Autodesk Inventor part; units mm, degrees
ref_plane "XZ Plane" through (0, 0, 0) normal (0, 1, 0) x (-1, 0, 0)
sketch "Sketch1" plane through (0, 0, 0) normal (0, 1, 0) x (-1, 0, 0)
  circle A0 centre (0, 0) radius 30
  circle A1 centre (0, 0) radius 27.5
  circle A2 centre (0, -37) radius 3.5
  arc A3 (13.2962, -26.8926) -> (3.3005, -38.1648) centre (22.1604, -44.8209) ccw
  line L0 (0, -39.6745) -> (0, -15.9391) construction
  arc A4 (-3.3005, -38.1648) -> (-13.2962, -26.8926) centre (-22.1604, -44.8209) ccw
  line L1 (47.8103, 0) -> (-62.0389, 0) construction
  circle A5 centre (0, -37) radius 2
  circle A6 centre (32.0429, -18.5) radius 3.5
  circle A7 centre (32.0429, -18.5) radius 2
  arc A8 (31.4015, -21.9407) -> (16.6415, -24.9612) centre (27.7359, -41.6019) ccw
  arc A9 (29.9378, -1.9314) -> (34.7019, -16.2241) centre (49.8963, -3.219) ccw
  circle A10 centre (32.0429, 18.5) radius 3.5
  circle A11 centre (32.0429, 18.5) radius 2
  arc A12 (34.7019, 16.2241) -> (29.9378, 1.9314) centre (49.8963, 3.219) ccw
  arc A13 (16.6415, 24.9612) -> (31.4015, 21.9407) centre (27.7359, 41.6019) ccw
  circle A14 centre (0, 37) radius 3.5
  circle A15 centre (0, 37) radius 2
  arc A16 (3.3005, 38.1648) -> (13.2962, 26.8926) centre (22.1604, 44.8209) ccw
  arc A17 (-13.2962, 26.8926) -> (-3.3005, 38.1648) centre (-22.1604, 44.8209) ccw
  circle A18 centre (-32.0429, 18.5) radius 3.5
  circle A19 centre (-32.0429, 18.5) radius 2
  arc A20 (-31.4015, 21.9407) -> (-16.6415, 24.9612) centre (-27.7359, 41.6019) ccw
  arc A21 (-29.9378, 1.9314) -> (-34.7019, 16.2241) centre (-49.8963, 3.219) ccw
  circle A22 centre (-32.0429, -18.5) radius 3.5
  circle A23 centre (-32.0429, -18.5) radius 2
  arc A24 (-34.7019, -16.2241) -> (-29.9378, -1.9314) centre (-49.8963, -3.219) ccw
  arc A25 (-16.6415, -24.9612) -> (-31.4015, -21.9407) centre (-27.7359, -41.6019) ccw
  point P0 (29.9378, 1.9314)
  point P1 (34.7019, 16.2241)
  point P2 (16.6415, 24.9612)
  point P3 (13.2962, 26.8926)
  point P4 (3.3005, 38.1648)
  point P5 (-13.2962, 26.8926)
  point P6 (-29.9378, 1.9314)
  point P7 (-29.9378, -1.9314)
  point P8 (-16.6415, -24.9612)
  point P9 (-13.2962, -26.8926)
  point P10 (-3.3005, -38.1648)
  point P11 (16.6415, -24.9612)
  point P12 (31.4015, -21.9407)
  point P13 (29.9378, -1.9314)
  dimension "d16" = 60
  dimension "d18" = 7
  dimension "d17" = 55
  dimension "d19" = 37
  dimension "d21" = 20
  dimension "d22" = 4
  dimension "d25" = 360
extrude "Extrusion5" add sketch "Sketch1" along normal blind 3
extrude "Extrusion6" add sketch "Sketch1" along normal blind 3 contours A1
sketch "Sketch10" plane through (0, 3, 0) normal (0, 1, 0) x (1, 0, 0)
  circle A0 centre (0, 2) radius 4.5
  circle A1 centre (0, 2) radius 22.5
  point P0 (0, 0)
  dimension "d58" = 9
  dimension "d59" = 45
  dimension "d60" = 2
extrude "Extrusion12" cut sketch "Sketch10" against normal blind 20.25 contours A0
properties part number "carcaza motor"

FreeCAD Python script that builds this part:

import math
import FreeCAD as App
import Part
import Sketcher
Q = App.Units.Quantity

doc = App.newDocument("Part")
body = doc.addObject("PartDesign::Body", "Body")

# Sketch on XZ plane
sketch1 = body.newObject("Sketcher::SketchObject", "Sketch")
sketch1.AttachmentSupport = (doc.getObject("XZ_Plane"), [""])
sketch1.MapMode = "FlatFace"
sketch1.addGeometry(Part.ArcOfCircle(Part.Circle(App.Vector(0, 0, 0), App.Vector(0, 0, 1), 30), math.radians(176.31), math.radians(183.69)), False)
sketch1.addGeometry(Part.ArcOfCircle(Part.Circle(App.Vector(-49.9, 3.2, 0), App.Vector(0, 0, 1), 20), math.radians(-4), math.radians(41)), False)
sketch1.addGeometry(Part.ArcOfCircle(Part.Circle(App.Vector(-32, 18.5, 0), App.Vector(0, 0, 1), 3.5), math.radians(79), math.radians(221)), False)
sketch1.addGeometry(Part.ArcOfCircle(Part.Circle(App.Vector(-27.7, 41.6, 0), App.Vector(0, 0, 1), 20), math.radians(-101), math.radians(-56)), False)
sketch1.addGeometry(Part.ArcOfCircle(Part.Circle(App.Vector(0, 0, 0), App.Vector(0, 0, 1), 30), math.radians(116.31), math.radians(123.69)), False)
sketch1.addGeometry(Part.ArcOfCircle(Part.Circle(App.Vector(-22.2, 44.8, 0), App.Vector(0, 0, 1), 20), math.radians(-64), math.radians(-19)), False)
sketch1.addGeometry(Part.ArcOfCircle(Part.Circle(App.Vector(0, 37, 0), App.Vector(0, 0, 1), 3.5), math.radians(19), math.radians(161)), False)
sketch1.addGeometry(Part.ArcOfCircle(Part.Circle(App.Vector(22.2, 44.8, 0), App.Vector(0, 0, 1), 20), math.radians(-161), math.radians(-116)), False)
sketch1.addGeometry(Part.ArcOfCircle(Part.Circle(App.Vector(0, 0, 0), App.Vector(0, 0, 1), 30), math.radians(56.31), math.radians(63.69)), False)
sketch1.addGeometry(Part.ArcOfCircle(Part.Circle(App.Vector(27.7, 41.6, 0), App.Vector(0, 0, 1), 20), math.radians(-124), math.radians(-79)), False)
sketch1.addGeometry(Part.ArcOfCircle(Part.Circle(App.Vector(32, 18.5, 0), App.Vector(0, 0, 1), 3.5), math.radians(-41), math.radians(101)), False)
sketch1.addGeometry(Part.ArcOfCircle(Part.Circle(App.Vector(49.9, 3.2, 0), App.Vector(0, 0, 1), 20), math.radians(139), math.radians(184)), False)
sketch1.addGeometry(Part.ArcOfCircle(Part.Circle(App.Vector(0, 0, 0), App.Vector(0, 0, 1), 30), math.radians(-3.69), math.radians(3.69)), False)
sketch1.addGeometry(Part.ArcOfCircle(Part.Circle(App.Vector(49.9, -3.2, 0), App.Vector(0, 0, 1), 20), math.radians(176), math.radians(221)), False)
sketch1.addGeometry(Part.ArcOfCircle(Part.Circle(App.Vector(32, -18.5, 0), App.Vector(0, 0, 1), 3.5), math.radians(-101), math.radians(41)), False)
sketch1.addGeometry(Part.ArcOfCircle(Part.Circle(App.Vector(27.7, -41.6, 0), App.Vector(0, 0, 1), 20), math.radians(79), math.radians(124)), False)
sketch1.addGeometry(Part.ArcOfCircle(Part.Circle(App.Vector(0, 0, 0), App.Vector(0, 0, 1), 30), math.radians(-63.69), math.radians(-56.31)), False)
sketch1.addGeometry(Part.ArcOfCircle(Part.Circle(App.Vector(22.2, -44.8, 0), App.Vector(0, 0, 1), 20), math.radians(116), math.radians(161)), False)
sketch1.addGeometry(Part.ArcOfCircle(Part.Circle(App.Vector(0, -37, 0), App.Vector(0, 0, 1), 3.5), math.radians(-161), math.radians(-19)), False)
sketch1.addGeometry(Part.ArcOfCircle(Part.Circle(App.Vector(-22.2, -44.8, 0), App.Vector(0, 0, 1), 20), math.radians(19), math.radians(64)), False)
sketch1.addGeometry(Part.ArcOfCircle(Part.Circle(App.Vector(0, 0, 0), App.Vector(0, 0, 1), 30), math.radians(-123.69), math.radians(-116.31)), False)
sketch1.addGeometry(Part.ArcOfCircle(Part.Circle(App.Vector(-27.7, -41.6, 0), App.Vector(0, 0, 1), 20), math.radians(56), math.radians(101)), False)
sketch1.addGeometry(Part.ArcOfCircle(Part.Circle(App.Vector(-32, -18.5, 0), App.Vector(0, 0, 1), 3.5), math.radians(139), math.radians(281)), False)
sketch1.addGeometry(Part.ArcOfCircle(Part.Circle(App.Vector(-49.9, -3.2, 0), App.Vector(0, 0, 1), 20), math.radians(-41), math.radians(4)), False)
sketch1.addGeometry(Part.Circle(App.Vector(0, 0, 0), App.Vector(0, 0, 1), 27.5), False)
sketch1.addGeometry(Part.Circle(App.Vector(-32, -18.5, 0), App.Vector(0, 0, 1), 2), False)
sketch1.addGeometry(Part.Circle(App.Vector(0, -37, 0), App.Vector(0, 0, 1), 2), False)
sketch1.addGeometry(Part.Circle(App.Vector(32, -18.5, 0), App.Vector(0, 0, 1), 2), False)
sketch1.addGeometry(Part.Circle(App.Vector(32, 18.5, 0), App.Vector(0, 0, 1), 2), False)
sketch1.addGeometry(Part.Circle(App.Vector(0, 37, 0), App.Vector(0, 0, 1), 2), False)
sketch1.addGeometry(Part.Circle(App.Vector(-32, 18.5, 0), App.Vector(0, 0, 1), 2), False)
sketch1.addConstraint(Sketcher.Constraint("Tangent", 0, 1, 1, 1))
sketch1.addConstraint(Sketcher.Constraint("Tangent", 1, 2, 2, 2))
sketch1.addConstraint(Sketcher.Constraint("Tangent", 2, 1, 3, 1))
sketch1.addConstraint(Sketcher.Constraint("Tangent", 3, 2, 4, 2))
sketch1.addConstraint(Sketcher.Constraint("Tangent", 4, 1, 5, 1))
sketch1.addConstraint(Sketcher.Constraint("Tangent", 5, 2, 6, 2))
sketch1.addConstraint(Sketcher.Constraint("Tangent", 6, 1, 7, 1))
sketch1.addConstraint(Sketcher.Constraint("Tangent", 7, 2, 8, 2))
sketch1.addConstraint(Sketcher.Constraint("Tangent", 8, 1, 9, 1))
sketch1.addConstraint(Sketcher.Constraint("Tangent", 9, 2, 10, 2))
sketch1.addConstraint(Sketcher.Constraint("Tangent", 10, 1, 11, 1))
sketch1.addConstraint(Sketcher.Constraint("Tangent", 11, 2, 12, 2))
sketch1.addConstraint(Sketcher.Constraint("Tangent", 12, 1, 13, 1))
sketch1.addConstraint(Sketcher.Constraint("Tangent", 13, 2, 14, 2))
sketch1.addConstraint(Sketcher.Constraint("Tangent", 14, 1, 15, 1))
sketch1.addConstraint(Sketcher.Constraint("Tangent", 15, 2, 16, 2))
sketch1.addConstraint(Sketcher.Constraint("Tangent", 16, 1, 17, 1))
sketch1.addConstraint(Sketcher.Constraint("Tangent", 17, 2, 18, 2))
sketch1.addConstraint(Sketcher.Constraint("Tangent", 18, 1, 19, 1))
sketch1.addConstraint(Sketcher.Constraint("Tangent", 19, 2, 20, 2))
sketch1.addConstraint(Sketcher.Constraint("Tangent", 20, 1, 21, 1))
sketch1.addConstraint(Sketcher.Constraint("Tangent", 21, 2, 22, 2))
sketch1.addConstraint(Sketcher.Constraint("Tangent", 22, 1, 23, 1))
sketch1.addConstraint(Sketcher.Constraint("Tangent", 23, 2, 0, 2))
sketch1.addConstraint(Sketcher.Constraint("Coincident", 0, 3, -1, 1))
sketch1.addConstraint(Sketcher.Constraint("Coincident", 4, 3, -1, 1))
sketch1.addConstraint(Sketcher.Constraint("Coincident", 8, 3, -1, 1))
sketch1.addConstraint(Sketcher.Constraint("Coincident", 12, 3, -1, 1))
sketch1.addConstraint(Sketcher.Constraint("Coincident", 16, 3, -1, 1))
sketch1.addConstraint(Sketcher.Constraint("Coincident", 20, 3, -1, 1))
sketch1.addConstraint(Sketcher.Constraint("Coincident", 24, 3, -1, 1))
sketch1.addConstraint(Sketcher.Constraint("Coincident", 25, 3, 22, 3))
sketch1.addConstraint(Sketcher.Constraint("Coincident", 26, 3, 18, 3))
sketch1.addConstraint(Sketcher.Constraint("Coincident", 27, 3, 14, 3))
sketch1.addConstraint(Sketcher.Constraint("Coincident", 28, 3, 10, 3))
sketch1.addConstraint(Sketcher.Constraint("Coincident", 29, 3, 6, 3))
sketch1.addConstraint(Sketcher.Constraint("Coincident", 30, 3, 2, 3))
sketch1.addConstraint(Sketcher.Constraint("Equal", 1, 3))
sketch1.addConstraint(Sketcher.Constraint("Equal", 0, 4))
sketch1.addConstraint(Sketcher.Constraint("Equal", 3, 5))
sketch1.addConstraint(Sketcher.Constraint("Equal", 2, 6))
sketch1.addConstraint(Sketcher.Constraint("Equal", 5, 7))
sketch1.addConstraint(Sketcher.Constraint("Equal", 4, 8))
sketch1.addConstraint(Sketcher.Constraint("Equal", 7, 9))
sketch1.addConstraint(Sketcher.Constraint("Equal", 6, 10))
sketch1.addConstraint(Sketcher.Constraint("Equal", 9, 11))
sketch1.addConstraint(Sketcher.Constraint("Equal", 8, 12))
sketch1.addConstraint(Sketcher.Constraint("Equal", 11, 13))
sketch1.addConstraint(Sketcher.Constraint("Equal", 10, 14))
sketch1.addConstraint(Sketcher.Constraint("Equal", 13, 15))
sketch1.addConstraint(Sketcher.Constraint("Equal", 12, 16))
sketch1.addConstraint(Sketcher.Constraint("Equal", 15, 17))
sketch1.addConstraint(Sketcher.Constraint("Equal", 14, 18))
sketch1.addConstraint(Sketcher.Constraint("Equal", 17, 19))
sketch1.addConstraint(Sketcher.Constraint("Equal", 16, 20))
sketch1.addConstraint(Sketcher.Constraint("Equal", 19, 21))
sketch1.addConstraint(Sketcher.Constraint("Equal", 18, 22))
sketch1.addConstraint(Sketcher.Constraint("Equal", 21, 23))
sketch1.addConstraint(Sketcher.Constraint("Equal", 25, 26))
sketch1.addConstraint(Sketcher.Constraint("Equal", 26, 27))
sketch1.addConstraint(Sketcher.Constraint("Equal", 27, 28))
sketch1.addConstraint(Sketcher.Constraint("Equal", 28, 29))
sketch1.addConstraint(Sketcher.Constraint("Equal", 29, 30))
sketch1.addConstraint(Sketcher.Constraint("Symmetric", 2, 3, 14, 3, -1, 1))
sketch1.addConstraint(Sketcher.Constraint("Symmetric", 6, 3, 18, 3, -1, 1))
sketch1.addConstraint(Sketcher.Constraint("Symmetric", 10, 3, 22, 3, -1, 1))
sketch1.addConstraint(Sketcher.Constraint("Symmetric", 2, 3, 10, 3, -2))
sketch1.addConstraint(Sketcher.Constraint("PointOnObject", 6, 3, -2))
sketch1.addConstraint(Sketcher.Constraint("Diameter", 24, Q("55 mm")))
sketch1.addConstraint(Sketcher.Constraint("Diameter", 25, Q("4 mm")))
sketch1.addConstraint(Sketcher.Constraint("Radius", 0, Q("30 mm")))
sketch1.addConstraint(Sketcher.Constraint("Radius", 1, Q("20 mm")))
sketch1.addConstraint(Sketcher.Constraint("Radius", 2, Q("3.5 mm")))
sketch1.addConstraint(Sketcher.Constraint("DistanceY", -1, 1, 6, 3, Q("37 mm")))
sketch1.addConstraint(Sketcher.Constraint("DistanceY", -1, 1, 2, 3, Q("18.5 mm")))
sketch1.addConstraint(Sketcher.Constraint("DistanceX", 2, 1, 3, 2, Q("14.76 mm")))
pad1 = body.newObject("PartDesign::Pad", "Pad")
pad1.Profile = sketch1
pad1.Length = 3
pad1.Reversed = True

# Sketch on XZ plane
sketch2 = body.newObject("Sketcher::SketchObject", "Sketch001")
sketch2.AttachmentSupport = (doc.getObject("XZ_Plane"), [""])
sketch2.MapMode = "FlatFace"
sketch2.addGeometry(Part.Circle(App.Vector(0, 0, 0), App.Vector(0, 0, 1), 28), False)
sketch2.addConstraint(Sketcher.Constraint("Coincident", 0, 3, -1, 1))
sketch2.addConstraint(Sketcher.Constraint("Diameter", 0, Q("55 mm")))
pad2 = body.newObject("PartDesign::Pad", "Pad001")
pad2.Profile = sketch2
pad2.Length = 3
pad2.Reversed = True

# Sketch on XZ plane
sketch3 = body.newObject("Sketcher::SketchObject", "Sketch002")
sketch3.AttachmentSupport = (doc.getObject("XZ_Plane"), [""])
sketch3.MapMode = "FlatFace"
sketch3.AttachmentOffset = App.Placement(App.Vector(0, 0, -3), App.Rotation())
sketch3.addGeometry(Part.Circle(App.Vector(0, -2, 0), App.Vector(0, 0, 1), 4.5), False)
sketch3.addConstraint(Sketcher.Constraint("PointOnObject", 0, 3, -2))
sketch3.addConstraint(Sketcher.Constraint("Diameter", 0, Q("9 mm")))
sketch3.addConstraint(Sketcher.Constraint("DistanceY", 0, 3, -1, 1, Q("2 mm")))
pocket1 = body.newObject("PartDesign::Pocket", "Pocket")
pocket1.Profile = sketch3
pocket1.Length = 20.25
pocket1.Reversed = True

doc.recompute()
